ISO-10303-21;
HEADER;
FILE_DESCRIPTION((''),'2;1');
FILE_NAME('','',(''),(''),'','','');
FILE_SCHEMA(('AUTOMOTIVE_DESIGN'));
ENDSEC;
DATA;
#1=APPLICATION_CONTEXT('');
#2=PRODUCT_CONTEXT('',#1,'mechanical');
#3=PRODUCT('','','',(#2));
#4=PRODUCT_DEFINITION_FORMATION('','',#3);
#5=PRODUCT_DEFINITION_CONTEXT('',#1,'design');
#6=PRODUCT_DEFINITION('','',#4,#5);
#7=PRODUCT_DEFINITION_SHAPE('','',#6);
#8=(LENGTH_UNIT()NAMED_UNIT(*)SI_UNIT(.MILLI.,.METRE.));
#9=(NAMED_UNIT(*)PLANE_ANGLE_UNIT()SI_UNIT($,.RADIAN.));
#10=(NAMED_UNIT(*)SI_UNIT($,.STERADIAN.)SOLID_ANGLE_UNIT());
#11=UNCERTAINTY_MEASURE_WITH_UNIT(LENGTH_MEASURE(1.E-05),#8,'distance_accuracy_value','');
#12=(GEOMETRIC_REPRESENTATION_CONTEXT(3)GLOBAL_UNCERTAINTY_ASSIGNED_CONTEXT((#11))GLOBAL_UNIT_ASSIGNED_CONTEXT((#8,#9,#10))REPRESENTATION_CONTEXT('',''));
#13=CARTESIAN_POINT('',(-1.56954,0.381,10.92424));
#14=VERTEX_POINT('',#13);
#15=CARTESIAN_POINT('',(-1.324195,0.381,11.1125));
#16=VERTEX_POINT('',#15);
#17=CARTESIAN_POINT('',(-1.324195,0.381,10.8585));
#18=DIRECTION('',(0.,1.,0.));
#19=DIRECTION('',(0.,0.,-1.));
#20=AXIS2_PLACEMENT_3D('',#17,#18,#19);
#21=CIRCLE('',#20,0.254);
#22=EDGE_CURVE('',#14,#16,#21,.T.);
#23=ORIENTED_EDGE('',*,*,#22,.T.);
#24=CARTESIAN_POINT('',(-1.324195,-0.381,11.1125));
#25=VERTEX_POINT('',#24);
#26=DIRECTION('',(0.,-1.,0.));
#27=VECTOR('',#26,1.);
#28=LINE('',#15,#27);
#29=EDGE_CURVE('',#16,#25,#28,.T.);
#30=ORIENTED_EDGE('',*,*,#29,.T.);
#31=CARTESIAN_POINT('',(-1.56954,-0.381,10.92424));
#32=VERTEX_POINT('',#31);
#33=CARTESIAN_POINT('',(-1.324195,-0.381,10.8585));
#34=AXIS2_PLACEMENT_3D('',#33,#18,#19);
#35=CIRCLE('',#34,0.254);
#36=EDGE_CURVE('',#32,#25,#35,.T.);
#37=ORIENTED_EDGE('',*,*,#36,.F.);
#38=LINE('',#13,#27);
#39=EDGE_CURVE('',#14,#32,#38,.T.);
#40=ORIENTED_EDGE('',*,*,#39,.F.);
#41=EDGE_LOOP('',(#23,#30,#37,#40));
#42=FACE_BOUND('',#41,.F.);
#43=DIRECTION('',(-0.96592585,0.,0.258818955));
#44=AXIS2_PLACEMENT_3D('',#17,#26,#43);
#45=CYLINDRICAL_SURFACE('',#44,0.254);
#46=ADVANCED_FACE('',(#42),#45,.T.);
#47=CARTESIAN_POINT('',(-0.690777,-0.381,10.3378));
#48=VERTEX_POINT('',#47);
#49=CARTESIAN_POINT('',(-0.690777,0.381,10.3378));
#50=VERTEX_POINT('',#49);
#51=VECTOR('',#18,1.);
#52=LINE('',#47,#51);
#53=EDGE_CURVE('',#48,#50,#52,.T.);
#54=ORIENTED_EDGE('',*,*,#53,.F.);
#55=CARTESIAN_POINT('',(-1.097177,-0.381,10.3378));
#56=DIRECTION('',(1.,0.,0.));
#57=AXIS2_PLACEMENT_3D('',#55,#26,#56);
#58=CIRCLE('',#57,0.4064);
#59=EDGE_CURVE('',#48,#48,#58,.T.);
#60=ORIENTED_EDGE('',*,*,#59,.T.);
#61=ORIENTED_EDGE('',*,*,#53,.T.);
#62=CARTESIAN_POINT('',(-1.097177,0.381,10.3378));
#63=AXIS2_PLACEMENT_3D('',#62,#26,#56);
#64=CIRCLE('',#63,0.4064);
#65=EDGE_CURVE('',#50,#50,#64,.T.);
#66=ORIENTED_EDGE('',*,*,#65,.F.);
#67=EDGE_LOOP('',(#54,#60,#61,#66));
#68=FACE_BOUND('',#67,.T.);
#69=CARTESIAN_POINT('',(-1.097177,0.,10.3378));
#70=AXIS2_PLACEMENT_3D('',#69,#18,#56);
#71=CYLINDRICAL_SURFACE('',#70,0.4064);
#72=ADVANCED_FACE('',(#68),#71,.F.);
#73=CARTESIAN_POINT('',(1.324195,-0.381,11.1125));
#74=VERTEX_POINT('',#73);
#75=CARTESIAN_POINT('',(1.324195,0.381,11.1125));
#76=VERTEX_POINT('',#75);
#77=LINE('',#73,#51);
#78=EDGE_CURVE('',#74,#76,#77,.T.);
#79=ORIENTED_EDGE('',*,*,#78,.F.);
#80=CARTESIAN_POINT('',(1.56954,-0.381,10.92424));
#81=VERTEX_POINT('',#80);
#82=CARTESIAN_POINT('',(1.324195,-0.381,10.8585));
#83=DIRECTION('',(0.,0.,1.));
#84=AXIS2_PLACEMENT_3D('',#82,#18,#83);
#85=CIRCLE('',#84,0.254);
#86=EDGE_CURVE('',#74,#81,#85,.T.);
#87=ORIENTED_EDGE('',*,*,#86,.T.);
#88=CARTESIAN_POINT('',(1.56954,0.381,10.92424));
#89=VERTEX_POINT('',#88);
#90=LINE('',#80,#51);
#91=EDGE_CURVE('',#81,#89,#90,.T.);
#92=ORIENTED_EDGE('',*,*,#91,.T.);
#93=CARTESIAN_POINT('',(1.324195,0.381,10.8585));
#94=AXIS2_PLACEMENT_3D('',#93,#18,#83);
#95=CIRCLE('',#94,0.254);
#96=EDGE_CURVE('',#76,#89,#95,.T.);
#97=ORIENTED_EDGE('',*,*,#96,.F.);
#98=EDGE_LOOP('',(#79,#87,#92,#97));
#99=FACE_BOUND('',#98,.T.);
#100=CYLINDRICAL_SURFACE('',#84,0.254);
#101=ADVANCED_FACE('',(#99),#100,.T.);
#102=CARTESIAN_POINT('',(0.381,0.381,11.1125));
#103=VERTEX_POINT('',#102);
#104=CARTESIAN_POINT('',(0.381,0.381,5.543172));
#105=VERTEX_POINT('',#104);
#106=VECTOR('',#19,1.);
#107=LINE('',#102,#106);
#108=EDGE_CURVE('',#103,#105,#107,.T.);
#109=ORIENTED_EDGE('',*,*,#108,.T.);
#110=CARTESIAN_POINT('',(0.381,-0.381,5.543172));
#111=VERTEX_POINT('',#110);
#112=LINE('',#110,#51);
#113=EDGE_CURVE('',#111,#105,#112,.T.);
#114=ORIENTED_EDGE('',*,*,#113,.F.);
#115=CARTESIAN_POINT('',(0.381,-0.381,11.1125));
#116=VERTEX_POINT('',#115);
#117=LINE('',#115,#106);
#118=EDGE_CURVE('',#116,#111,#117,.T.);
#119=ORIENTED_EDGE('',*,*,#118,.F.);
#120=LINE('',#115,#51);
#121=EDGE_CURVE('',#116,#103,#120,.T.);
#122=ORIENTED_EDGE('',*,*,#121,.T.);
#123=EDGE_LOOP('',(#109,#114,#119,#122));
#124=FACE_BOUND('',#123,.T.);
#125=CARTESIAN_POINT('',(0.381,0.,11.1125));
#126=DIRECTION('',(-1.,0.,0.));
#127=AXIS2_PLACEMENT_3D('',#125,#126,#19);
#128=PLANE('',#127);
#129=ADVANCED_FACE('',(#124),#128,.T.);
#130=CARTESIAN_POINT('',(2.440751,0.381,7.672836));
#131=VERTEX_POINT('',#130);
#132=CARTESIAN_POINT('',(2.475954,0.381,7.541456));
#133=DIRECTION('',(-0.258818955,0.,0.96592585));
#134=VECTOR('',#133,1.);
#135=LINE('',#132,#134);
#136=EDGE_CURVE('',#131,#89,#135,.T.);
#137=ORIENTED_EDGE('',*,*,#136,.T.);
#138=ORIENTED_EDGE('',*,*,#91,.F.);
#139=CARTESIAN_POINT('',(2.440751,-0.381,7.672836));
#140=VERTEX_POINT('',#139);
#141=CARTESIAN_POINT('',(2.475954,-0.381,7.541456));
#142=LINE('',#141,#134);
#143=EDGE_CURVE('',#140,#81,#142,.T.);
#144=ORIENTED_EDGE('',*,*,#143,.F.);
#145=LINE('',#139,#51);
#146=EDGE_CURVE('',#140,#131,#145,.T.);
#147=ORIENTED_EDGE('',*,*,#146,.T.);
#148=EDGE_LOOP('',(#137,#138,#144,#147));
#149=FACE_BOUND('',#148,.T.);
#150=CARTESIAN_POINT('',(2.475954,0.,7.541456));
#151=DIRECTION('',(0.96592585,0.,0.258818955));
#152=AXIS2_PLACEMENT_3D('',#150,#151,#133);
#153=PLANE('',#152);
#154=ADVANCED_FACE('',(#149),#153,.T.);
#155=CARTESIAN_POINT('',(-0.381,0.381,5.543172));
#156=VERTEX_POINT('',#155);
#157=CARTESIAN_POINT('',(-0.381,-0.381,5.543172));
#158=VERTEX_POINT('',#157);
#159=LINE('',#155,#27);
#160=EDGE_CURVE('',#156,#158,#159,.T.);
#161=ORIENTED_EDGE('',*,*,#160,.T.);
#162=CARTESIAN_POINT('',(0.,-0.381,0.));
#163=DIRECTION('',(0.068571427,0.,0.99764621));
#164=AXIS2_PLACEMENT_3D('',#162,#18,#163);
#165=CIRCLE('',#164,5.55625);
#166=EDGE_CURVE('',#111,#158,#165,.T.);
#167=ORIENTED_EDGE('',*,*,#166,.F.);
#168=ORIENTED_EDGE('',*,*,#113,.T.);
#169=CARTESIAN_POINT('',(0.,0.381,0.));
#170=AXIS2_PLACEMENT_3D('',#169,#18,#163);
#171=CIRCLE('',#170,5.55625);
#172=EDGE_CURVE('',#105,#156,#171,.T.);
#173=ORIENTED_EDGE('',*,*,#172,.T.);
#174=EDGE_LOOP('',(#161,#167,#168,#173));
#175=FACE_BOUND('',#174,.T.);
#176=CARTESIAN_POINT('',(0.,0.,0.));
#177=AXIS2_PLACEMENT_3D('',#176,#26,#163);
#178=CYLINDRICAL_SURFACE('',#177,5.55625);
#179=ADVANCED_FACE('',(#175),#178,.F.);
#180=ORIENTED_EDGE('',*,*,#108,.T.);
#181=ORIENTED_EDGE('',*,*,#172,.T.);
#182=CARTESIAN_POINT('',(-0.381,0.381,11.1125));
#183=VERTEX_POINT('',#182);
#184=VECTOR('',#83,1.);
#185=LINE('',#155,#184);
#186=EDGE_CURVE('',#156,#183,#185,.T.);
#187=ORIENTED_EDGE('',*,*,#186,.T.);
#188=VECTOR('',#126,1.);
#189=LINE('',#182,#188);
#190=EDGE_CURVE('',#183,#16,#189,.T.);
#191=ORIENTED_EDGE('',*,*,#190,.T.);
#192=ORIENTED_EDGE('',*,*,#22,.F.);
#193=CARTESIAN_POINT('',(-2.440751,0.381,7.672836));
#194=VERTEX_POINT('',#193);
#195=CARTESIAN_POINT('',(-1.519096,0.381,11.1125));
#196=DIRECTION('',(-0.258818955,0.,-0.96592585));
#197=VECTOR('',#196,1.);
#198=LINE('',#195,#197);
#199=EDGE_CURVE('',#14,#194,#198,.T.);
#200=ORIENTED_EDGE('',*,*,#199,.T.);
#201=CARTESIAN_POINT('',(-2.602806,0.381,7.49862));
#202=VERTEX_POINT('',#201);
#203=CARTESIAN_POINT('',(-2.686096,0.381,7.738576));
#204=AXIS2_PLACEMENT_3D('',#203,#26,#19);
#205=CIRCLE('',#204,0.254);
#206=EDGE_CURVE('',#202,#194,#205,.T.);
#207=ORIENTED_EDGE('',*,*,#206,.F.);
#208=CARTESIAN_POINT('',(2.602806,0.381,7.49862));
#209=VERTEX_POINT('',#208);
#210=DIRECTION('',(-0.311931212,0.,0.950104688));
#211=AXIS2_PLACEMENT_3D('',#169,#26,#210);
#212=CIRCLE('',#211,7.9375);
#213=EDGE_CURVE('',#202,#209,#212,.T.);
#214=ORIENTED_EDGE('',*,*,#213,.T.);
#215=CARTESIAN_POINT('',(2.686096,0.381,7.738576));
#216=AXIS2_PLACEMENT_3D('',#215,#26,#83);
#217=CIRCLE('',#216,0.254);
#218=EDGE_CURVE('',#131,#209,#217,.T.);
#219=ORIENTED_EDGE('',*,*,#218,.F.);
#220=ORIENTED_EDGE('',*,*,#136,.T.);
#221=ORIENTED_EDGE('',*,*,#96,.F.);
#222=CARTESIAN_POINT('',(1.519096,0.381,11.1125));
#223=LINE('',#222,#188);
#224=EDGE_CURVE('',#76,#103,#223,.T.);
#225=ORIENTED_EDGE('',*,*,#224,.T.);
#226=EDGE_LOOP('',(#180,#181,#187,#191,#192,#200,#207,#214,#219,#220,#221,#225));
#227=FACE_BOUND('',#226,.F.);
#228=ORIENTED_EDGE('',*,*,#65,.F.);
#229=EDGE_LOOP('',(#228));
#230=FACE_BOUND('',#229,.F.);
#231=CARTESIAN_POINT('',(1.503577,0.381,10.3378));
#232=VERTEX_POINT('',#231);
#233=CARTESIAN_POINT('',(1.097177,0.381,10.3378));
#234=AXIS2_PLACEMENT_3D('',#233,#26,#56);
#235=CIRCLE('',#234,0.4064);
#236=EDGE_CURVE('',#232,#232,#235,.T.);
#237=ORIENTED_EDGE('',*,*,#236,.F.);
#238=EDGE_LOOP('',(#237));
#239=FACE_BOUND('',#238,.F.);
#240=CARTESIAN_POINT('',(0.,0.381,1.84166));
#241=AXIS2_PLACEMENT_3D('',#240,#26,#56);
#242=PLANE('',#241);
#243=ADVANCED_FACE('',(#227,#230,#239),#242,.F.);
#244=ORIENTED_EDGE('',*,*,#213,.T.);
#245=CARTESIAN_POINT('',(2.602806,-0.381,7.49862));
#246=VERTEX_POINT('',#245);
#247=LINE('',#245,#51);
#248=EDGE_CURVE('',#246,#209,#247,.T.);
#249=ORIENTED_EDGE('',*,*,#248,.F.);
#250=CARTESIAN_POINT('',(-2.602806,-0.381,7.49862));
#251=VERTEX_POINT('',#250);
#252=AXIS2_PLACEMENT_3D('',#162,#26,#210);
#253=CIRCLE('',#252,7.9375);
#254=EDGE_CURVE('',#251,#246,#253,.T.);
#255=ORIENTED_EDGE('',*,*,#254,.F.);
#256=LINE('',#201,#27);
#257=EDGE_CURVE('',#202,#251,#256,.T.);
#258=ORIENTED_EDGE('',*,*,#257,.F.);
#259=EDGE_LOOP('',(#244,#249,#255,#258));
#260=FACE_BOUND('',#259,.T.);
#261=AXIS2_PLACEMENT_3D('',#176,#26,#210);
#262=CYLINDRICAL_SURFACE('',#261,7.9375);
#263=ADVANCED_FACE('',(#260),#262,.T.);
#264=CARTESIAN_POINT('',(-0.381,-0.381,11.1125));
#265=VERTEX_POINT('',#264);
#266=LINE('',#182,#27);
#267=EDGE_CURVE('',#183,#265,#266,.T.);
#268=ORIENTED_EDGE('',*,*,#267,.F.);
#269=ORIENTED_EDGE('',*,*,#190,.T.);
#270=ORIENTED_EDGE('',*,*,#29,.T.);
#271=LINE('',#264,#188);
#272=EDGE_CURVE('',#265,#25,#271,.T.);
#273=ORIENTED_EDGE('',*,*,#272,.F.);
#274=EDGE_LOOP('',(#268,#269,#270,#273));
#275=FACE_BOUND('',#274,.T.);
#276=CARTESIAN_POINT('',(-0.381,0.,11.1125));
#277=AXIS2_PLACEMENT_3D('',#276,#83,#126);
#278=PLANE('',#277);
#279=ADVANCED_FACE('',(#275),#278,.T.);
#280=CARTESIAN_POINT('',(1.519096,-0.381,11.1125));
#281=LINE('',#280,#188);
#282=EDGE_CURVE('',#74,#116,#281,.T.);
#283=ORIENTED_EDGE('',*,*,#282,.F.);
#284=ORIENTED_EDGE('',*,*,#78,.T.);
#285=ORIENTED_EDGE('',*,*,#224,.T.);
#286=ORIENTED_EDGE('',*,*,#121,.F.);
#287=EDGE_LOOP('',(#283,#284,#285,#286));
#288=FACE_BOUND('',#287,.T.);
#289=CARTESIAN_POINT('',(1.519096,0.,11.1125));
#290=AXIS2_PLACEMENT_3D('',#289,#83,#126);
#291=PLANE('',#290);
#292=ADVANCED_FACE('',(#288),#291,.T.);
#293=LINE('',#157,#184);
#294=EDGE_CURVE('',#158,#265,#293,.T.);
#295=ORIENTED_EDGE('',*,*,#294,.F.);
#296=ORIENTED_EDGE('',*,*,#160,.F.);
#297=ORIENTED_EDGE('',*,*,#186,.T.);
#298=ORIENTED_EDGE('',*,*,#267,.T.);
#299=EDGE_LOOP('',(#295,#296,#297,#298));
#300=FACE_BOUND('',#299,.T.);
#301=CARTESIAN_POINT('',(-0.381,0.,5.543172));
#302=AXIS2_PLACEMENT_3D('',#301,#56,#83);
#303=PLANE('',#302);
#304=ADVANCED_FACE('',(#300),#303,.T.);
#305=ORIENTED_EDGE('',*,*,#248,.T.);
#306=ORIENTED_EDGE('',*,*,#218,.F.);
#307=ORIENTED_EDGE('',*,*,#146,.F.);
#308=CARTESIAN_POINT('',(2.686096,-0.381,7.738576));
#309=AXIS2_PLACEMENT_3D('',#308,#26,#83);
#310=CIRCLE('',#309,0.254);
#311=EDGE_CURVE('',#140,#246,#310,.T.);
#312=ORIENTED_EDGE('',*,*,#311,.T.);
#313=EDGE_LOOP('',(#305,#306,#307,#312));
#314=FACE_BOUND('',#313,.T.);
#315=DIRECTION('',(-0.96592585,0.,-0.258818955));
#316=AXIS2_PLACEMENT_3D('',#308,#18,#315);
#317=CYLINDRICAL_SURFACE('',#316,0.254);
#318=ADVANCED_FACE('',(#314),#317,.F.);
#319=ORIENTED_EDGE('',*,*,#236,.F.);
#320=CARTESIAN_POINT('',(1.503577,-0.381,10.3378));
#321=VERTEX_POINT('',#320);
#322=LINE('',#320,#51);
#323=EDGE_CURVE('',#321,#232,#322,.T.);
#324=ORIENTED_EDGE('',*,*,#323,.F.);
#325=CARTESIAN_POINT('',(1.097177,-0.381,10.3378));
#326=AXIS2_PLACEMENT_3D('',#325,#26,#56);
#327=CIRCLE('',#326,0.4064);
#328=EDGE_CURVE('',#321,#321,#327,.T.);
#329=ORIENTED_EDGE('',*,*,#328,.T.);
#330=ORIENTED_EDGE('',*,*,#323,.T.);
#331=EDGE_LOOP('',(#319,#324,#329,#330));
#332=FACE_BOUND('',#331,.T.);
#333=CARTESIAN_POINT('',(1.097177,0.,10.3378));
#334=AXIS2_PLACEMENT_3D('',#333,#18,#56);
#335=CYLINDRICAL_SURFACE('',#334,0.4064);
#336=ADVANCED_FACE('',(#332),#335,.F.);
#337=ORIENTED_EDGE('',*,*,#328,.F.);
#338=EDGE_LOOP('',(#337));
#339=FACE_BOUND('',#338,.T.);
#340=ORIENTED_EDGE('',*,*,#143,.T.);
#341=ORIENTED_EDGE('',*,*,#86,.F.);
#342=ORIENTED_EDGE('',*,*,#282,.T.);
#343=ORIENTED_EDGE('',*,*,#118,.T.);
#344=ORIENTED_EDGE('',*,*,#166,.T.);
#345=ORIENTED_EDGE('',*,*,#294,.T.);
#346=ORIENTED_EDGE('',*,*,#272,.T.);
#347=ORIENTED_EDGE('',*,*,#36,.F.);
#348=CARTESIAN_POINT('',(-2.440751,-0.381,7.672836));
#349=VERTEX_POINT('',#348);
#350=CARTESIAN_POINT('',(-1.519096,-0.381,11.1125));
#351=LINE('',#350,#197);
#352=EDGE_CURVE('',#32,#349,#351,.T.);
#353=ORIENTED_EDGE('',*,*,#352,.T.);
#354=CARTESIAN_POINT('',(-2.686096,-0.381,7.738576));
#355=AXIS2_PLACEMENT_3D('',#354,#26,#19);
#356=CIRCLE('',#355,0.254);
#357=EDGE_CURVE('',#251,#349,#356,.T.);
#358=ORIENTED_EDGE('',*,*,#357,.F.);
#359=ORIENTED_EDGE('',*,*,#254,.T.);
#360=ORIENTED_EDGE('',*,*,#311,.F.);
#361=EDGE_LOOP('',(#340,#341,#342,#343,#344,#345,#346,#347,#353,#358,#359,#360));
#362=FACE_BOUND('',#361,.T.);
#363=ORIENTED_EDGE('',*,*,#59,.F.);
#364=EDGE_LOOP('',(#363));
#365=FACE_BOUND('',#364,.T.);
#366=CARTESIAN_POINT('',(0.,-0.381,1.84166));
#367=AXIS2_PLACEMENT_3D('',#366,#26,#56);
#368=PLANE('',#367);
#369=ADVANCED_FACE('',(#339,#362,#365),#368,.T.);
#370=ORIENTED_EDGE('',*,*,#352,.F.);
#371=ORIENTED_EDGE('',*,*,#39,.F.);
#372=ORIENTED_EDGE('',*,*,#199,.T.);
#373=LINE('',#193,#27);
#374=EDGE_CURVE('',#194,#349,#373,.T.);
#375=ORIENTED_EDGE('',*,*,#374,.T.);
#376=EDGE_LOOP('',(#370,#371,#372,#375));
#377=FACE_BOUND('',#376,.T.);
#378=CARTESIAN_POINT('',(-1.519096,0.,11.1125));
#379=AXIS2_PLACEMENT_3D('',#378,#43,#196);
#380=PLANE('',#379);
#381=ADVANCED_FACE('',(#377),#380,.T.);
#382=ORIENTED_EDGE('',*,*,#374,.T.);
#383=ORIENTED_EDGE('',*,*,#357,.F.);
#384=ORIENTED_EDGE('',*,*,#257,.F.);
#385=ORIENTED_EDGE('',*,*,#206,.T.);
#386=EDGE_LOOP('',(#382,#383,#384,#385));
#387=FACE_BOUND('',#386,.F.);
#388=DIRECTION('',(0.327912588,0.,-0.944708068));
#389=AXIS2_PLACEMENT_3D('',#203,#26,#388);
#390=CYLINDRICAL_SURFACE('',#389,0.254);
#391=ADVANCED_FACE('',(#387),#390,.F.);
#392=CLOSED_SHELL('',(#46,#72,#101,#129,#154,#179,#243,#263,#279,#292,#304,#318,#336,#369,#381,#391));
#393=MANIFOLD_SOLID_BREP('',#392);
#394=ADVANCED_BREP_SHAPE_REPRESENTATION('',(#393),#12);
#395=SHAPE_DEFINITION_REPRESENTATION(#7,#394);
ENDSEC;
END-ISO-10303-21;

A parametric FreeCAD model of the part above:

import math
import FreeCAD as App
import Part
import Sketcher
from FreeCAD import Vector
Q = App.Units.Quantity


def edges_at(feature, points):
    """Names of the edges that pass closest to the given points."""
    edges = feature.Shape.Edges
    near = lambda p: min(range(len(edges)), key=lambda i: edges[i].distToShape(Part.Vertex(*p))[0])
    return sorted({f"Edge{near(p) + 1}" for p in points})

doc = App.newDocument("Part")
body = doc.addObject("PartDesign::Body", "Body")

# Sketch on XZ plane
sketch1 = body.newObject("Sketcher::SketchObject", "Sketch")
sketch1.AttachmentSupport = (doc.getObject("XZ_Plane"), [""])
sketch1.MapMode = "FlatFace"
sketch1.addGeometry(Part.ArcOfCircle(Part.Circle(Vector(0, 0, 0), Vector(0, 0, 1), 5.56), math.radians(94), math.radians(446)), False)
sketch1.addGeometry(Part.LineSegment(Vector(-0.38, 5.54, 0), Vector(-0.38, 11.11, 0)), False)
sketch1.addGeometry(Part.LineSegment(Vector(-0.38, 11.11, 0), Vector(-1.52, 11.11, 0)), False)
sketch1.addGeometry(Part.LineSegment(Vector(-1.52, 11.11, 0), Vector(-2.48, 7.54, 0)), False)
sketch1.addGeometry(Part.ArcOfCircle(Part.Circle(Vector(0, 0, 0), Vector(0, 0, 1), 7.94), math.radians(108), math.radians(432)), False)
sketch1.addGeometry(Part.LineSegment(Vector(2.48, 7.54, 0), Vector(1.52, 11.11, 0)), False)
sketch1.addGeometry(Part.LineSegment(Vector(1.52, 11.11, 0), Vector(0.38, 11.11, 0)), False)
sketch1.addGeometry(Part.LineSegment(Vector(0.38, 11.11, 0), Vector(0.38, 5.54, 0)), False)
sketch1.addGeometry(Part.Circle(Vector(-1.1, 10.34, 0), Vector(0, 0, 1), 0.41), False)
sketch1.addGeometry(Part.Circle(Vector(1.1, 10.34, 0), Vector(0, 0, 1), 0.41), False)
sketch1.addConstraint(Sketcher.Constraint("Coincident", 0, 1, 1, 1))
sketch1.addConstraint(Sketcher.Constraint("Coincident", 1, 2, 2, 1))
sketch1.addConstraint(Sketcher.Constraint("Coincident", 2, 2, 3, 1))
sketch1.addConstraint(Sketcher.Constraint("Coincident", 3, 2, 4, 1))
sketch1.addConstraint(Sketcher.Constraint("Coincident", 4, 2, 5, 1))
sketch1.addConstraint(Sketcher.Constraint("Coincident", 5, 2, 6, 1))
sketch1.addConstraint(Sketcher.Constraint("Coincident", 6, 2, 7, 1))
sketch1.addConstraint(Sketcher.Constraint("Coincident", 7, 2, 0, 2))
sketch1.addConstraint(Sketcher.Constraint("Vertical", 1))
sketch1.addConstraint(Sketcher.Constraint("Horizontal", 2))
sketch1.addConstraint(Sketcher.Constraint("Horizontal", 6))
sketch1.addConstraint(Sketcher.Constraint("Vertical", 7))
sketch1.addConstraint(Sketcher.Constraint("Coincident", 0, 3, -1, 1))
sketch1.addConstraint(Sketcher.Constraint("Coincident", 4, 3, -1, 1))
sketch1.addConstraint(Sketcher.Constraint("Equal", 8, 9))
sketch1.addConstraint(Sketcher.Constraint("Symmetric", 8, 3, 9, 3, -2))
sketch1.addConstraint(Sketcher.Constraint("Symmetric", 2, 2, 5, 2, -2))
sketch1.addConstraint(Sketcher.Constraint("Horizontal", 3, 2, 4, 2))
sketch1.addConstraint(Sketcher.Constraint("Horizontal", 0, 1, 7, 2))
sketch1.addConstraint(Sketcher.Constraint("Diameter", 8, Q("0.032 in")))
sketch1.addConstraint(Sketcher.Constraint("Angle", 3, Q("-104.999995 deg")))
sketch1.addConstraint(Sketcher.Constraint("Radius", 0, Q("0.21875 in")))
sketch1.addConstraint(Sketcher.Constraint("Radius", 4, Q("0.3125 in")))
sketch1.addConstraint(Sketcher.Constraint("DistanceX", 1, 2, 6, 2, Q("0.03 in")))
sketch1.addConstraint(Sketcher.Constraint("DistanceY", -1, 1, 8, 3, Q("0.407 in")))
sketch1.addConstraint(Sketcher.Constraint("DistanceY", -1, 1, 1, 2, Q("0.4375 in")))
sketch1.addConstraint(Sketcher.Constraint("DistanceX", 2, 2, 2, 1, Q("1.138096 mm")))
sketch1.addConstraint(Sketcher.Constraint("DistanceX", 2, 2, 8, 3, Q("0.421919 mm")))
pad1 = body.newObject("PartDesign::Pad", "Pad")
pad1.Profile = sketch1
pad1.Length = Q("0.03 in")
pad1.Midplane = True
doc.recompute()

fillet = body.newObject("PartDesign::Fillet", "Fillet")
fillet.Base = (pad1, edges_at(pad1, [
    (-1.519, 0, 11.113),
    (1.519, 0, 11.113),
    (-2.476, 0, 7.541),
    (2.476, 0, 7.541),
]))
fillet.Radius = Q("0.01 in")

doc.recompute()
